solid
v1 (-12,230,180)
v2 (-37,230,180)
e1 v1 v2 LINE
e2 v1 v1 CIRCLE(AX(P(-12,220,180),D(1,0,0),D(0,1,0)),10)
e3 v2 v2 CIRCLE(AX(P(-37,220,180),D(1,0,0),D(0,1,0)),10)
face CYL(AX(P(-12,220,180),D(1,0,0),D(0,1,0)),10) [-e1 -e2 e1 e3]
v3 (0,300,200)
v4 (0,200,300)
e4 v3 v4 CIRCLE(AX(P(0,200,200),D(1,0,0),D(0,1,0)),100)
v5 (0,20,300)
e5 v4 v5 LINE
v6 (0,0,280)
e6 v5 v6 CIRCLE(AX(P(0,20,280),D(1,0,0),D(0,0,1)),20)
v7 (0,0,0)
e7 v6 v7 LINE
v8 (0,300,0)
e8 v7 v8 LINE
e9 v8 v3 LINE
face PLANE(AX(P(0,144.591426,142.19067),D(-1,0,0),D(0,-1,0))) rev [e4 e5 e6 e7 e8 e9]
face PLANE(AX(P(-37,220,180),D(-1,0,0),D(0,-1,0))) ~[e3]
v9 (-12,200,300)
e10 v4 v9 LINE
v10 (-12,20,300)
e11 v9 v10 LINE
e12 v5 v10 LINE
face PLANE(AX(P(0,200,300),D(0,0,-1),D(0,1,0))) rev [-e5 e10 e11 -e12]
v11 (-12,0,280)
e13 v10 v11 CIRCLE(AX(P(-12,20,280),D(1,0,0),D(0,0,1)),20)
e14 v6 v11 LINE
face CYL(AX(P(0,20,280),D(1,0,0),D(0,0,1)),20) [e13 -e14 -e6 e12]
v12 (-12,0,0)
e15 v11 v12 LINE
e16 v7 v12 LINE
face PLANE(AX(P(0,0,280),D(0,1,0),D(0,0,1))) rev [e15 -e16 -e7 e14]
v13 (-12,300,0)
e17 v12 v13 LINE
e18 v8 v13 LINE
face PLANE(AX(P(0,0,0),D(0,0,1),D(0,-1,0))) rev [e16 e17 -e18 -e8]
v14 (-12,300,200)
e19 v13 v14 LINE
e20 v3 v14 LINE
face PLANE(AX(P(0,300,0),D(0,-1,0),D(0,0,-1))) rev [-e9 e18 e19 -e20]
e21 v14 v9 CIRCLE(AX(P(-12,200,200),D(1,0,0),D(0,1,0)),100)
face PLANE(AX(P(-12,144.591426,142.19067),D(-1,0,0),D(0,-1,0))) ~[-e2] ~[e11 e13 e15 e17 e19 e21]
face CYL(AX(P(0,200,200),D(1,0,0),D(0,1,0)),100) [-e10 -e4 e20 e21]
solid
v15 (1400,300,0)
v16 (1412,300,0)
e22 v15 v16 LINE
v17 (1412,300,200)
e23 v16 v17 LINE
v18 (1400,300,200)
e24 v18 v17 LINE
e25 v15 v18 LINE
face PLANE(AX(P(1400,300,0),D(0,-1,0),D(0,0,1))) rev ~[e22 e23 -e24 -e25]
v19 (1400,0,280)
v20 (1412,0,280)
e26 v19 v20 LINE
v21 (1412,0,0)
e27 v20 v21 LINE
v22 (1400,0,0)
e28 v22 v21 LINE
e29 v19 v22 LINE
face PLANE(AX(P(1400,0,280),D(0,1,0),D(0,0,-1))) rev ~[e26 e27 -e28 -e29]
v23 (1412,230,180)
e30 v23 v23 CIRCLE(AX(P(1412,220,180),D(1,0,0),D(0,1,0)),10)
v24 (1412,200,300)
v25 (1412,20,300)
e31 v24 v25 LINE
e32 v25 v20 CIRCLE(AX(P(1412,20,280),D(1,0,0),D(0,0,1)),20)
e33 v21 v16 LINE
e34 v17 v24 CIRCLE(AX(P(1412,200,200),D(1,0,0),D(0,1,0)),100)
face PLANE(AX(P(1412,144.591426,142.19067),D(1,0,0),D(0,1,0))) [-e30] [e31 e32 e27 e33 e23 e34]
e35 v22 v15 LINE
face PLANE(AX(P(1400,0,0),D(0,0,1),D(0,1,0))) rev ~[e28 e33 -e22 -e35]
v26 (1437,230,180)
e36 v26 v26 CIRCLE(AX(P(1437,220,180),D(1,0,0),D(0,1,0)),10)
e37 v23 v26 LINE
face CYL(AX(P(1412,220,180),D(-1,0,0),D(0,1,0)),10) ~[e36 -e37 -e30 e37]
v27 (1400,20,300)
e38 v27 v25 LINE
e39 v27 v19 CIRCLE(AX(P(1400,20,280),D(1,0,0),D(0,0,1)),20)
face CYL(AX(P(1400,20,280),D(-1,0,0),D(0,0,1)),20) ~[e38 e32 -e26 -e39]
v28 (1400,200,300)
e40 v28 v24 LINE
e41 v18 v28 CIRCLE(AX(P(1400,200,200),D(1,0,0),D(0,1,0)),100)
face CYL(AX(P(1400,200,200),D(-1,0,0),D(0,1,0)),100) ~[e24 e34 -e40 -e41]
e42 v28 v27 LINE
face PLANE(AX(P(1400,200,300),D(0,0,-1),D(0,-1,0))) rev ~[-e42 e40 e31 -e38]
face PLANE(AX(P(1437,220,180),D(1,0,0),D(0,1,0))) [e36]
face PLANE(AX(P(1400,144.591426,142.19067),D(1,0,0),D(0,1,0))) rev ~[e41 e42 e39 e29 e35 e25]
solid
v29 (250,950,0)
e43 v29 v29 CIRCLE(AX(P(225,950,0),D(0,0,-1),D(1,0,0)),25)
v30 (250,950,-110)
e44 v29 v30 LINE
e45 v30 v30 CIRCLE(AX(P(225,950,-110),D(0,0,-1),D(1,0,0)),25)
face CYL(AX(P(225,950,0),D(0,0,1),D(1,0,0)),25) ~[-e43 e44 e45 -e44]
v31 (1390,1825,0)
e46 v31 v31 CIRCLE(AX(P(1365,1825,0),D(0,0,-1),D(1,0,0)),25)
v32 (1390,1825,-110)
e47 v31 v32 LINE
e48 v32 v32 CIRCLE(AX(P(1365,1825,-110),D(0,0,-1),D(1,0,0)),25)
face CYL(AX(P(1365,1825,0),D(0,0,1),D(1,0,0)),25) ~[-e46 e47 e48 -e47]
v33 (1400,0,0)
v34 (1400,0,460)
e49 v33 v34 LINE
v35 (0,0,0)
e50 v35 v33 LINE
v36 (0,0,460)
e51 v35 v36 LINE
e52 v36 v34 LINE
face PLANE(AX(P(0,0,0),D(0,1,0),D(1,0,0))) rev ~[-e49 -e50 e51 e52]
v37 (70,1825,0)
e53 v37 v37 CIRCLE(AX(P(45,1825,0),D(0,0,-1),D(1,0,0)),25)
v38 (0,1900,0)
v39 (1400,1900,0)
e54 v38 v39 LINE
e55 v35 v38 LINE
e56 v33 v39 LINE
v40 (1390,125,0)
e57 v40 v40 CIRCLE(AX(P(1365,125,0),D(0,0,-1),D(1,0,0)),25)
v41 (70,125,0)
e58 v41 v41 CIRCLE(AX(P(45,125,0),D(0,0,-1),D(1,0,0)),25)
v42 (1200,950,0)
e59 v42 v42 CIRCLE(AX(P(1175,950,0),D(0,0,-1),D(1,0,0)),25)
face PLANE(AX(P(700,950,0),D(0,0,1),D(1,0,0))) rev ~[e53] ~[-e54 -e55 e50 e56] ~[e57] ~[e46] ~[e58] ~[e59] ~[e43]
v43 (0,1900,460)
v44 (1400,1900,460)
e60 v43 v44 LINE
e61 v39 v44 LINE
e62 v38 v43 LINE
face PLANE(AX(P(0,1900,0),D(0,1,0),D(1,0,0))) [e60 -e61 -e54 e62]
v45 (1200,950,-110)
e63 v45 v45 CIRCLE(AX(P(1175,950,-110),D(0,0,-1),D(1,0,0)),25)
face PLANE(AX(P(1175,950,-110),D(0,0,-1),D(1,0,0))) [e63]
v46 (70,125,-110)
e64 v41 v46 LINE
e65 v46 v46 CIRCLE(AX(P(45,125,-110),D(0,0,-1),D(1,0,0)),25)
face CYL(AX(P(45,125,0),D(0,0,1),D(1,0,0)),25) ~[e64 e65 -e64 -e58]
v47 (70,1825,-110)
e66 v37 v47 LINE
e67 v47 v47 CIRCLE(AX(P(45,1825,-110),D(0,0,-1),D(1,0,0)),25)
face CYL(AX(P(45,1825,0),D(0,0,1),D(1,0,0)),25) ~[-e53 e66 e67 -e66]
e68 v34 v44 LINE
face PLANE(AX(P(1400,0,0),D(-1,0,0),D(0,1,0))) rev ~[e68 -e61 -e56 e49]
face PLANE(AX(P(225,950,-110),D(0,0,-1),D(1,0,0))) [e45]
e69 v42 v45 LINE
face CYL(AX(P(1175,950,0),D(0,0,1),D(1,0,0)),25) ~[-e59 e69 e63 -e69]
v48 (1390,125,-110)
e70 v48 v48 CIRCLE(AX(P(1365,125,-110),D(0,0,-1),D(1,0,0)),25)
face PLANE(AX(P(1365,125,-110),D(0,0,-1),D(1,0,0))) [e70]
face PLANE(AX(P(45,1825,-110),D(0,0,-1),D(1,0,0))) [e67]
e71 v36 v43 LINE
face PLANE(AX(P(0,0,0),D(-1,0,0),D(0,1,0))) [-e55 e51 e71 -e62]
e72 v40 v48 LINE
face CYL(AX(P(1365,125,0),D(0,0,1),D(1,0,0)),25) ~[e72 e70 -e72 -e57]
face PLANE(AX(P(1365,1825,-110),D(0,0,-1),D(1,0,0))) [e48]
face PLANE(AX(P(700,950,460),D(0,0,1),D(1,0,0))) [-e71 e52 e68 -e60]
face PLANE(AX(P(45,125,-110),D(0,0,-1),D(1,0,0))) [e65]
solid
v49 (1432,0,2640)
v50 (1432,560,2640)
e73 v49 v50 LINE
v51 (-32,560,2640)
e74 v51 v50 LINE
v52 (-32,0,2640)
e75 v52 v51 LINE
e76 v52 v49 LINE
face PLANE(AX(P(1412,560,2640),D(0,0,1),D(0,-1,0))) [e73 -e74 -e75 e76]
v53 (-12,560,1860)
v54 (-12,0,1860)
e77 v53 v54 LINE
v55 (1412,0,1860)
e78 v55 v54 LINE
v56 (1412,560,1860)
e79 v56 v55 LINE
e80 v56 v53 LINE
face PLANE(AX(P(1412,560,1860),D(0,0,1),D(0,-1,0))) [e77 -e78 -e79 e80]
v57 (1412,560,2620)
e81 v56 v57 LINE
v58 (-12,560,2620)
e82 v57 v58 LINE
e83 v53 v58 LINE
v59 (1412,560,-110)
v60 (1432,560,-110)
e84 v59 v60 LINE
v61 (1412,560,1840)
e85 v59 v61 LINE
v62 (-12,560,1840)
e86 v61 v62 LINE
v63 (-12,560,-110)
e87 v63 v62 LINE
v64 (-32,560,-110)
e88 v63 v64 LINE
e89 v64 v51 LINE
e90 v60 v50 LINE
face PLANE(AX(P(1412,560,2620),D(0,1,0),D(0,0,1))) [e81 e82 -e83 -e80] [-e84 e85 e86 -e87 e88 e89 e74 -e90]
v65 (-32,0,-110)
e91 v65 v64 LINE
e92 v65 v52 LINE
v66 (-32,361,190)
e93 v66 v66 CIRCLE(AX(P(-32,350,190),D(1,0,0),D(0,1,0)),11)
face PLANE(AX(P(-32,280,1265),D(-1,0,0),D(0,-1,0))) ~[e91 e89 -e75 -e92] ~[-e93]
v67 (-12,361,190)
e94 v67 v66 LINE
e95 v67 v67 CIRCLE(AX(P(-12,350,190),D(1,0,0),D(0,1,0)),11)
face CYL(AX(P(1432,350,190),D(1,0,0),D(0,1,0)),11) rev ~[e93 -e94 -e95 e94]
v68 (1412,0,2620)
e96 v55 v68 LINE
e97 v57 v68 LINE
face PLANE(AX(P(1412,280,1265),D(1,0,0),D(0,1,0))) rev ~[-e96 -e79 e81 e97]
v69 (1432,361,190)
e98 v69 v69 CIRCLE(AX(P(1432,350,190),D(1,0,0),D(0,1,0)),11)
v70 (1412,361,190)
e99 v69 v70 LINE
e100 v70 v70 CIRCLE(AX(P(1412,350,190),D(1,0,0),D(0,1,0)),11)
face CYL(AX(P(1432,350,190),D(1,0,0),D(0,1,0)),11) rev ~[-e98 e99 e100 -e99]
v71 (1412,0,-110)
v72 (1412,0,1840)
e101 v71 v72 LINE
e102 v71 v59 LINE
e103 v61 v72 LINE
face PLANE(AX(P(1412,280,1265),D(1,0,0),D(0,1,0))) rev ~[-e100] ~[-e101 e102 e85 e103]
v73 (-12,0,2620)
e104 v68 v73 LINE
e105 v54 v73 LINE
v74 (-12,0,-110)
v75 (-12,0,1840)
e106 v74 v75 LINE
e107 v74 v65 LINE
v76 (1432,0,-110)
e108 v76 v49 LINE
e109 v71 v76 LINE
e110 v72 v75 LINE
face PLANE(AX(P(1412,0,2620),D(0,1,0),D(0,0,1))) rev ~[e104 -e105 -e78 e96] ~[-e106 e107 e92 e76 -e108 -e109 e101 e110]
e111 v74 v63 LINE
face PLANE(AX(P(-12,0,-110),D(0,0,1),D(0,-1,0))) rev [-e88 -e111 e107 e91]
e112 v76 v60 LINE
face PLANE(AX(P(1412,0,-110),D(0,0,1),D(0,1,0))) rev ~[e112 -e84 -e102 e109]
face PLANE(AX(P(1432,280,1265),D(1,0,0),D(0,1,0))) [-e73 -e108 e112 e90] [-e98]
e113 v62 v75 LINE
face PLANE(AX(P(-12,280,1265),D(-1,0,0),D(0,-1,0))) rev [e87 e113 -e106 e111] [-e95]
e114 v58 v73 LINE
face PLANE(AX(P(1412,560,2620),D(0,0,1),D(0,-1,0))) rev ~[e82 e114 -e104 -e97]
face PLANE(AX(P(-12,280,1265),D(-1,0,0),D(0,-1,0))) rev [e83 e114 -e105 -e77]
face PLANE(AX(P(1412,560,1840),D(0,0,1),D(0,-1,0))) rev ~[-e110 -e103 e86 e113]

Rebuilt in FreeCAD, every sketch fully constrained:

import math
import FreeCAD as App
import Part
import Sketcher
from FreeCAD import Vector
Q = App.Units.Quantity

doc = App.newDocument("Part")
body = doc.addObject("PartDesign::Body", "Body")

sketch1 = body.newObject("Sketcher::SketchObject", "Sketch")
sketch1.AttachmentSupport = (doc.getObject("XY_Plane"), [""])
sketch1.MapMode = "FlatFace"
sketch1.addGeometry([
    Part.LineSegment(Vector(0, 1900, 0), Vector(0, 0, 0)),
    Part.LineSegment(Vector(0, 0, 0), Vector(1400, 0, 0)),
    Part.LineSegment(Vector(1400, 0, 0), Vector(1400, 1900, 0)),
    Part.LineSegment(Vector(1400, 1900, 0), Vector(0, 1900, 0)),
], False)
sketch1.addConstraint([
    Sketcher.Constraint("Coincident", 0, 2, 1, 1),
    Sketcher.Constraint("Coincident", 1, 2, 2, 1),
    Sketcher.Constraint("Coincident", 2, 2, 3, 1),
    Sketcher.Constraint("Coincident", 3, 2, 0, 1),
    Sketcher.Constraint("Vertical", 0),
    Sketcher.Constraint("Horizontal", 1),
    Sketcher.Constraint("Vertical", 2),
    Sketcher.Constraint("Horizontal", 3),
    Sketcher.Constraint("Coincident", 0, 2, -1, 1),
    Sketcher.Constraint("DistanceX", 1, 1, 1, 2, Q("1400 mm")),
    Sketcher.Constraint("DistanceY", 0, 2, 0, 1, Q("1900 mm")),
])
pad1 = body.newObject("PartDesign::Pad", "Pad")
pad1.Profile = sketch1
pad1.Length = 460

sketch2 = body.newObject("Sketcher::SketchObject", "Sketch001")
sketch2.AttachmentSupport = (doc.getObject("XY_Plane"), [""])
sketch2.MapMode = "FlatFace"
sketch2.addGeometry([
    Part.Circle(Vector(45, 125, 0), Vector(0, 0, 1), 25),
    Part.Circle(Vector(45, 1825, 0), Vector(0, 0, 1), 25),
    Part.Circle(Vector(1365, 125, 0), Vector(0, 0, 1), 25),
    Part.Circle(Vector(1365, 1825, 0), Vector(0, 0, 1), 25),
    Part.Circle(Vector(225, 950, 0), Vector(0, 0, 1), 25),
    Part.Circle(Vector(1175, 950, 0), Vector(0, 0, 1), 25),
], False)
sketch2.addConstraint([
    Sketcher.Constraint("Equal", 0, 1),
    Sketcher.Constraint("Equal", 1, 2),
    Sketcher.Constraint("Equal", 2, 3),
    Sketcher.Constraint("Equal", 3, 4),
    Sketcher.Constraint("Equal", 4, 5),
    Sketcher.Constraint("Horizontal", 0, 3, 2, 3),
    Sketcher.Constraint("Horizontal", 1, 3, 3, 3),
    Sketcher.Constraint("Horizontal", 4, 3, 5, 3),
    Sketcher.Constraint("Vertical", 0, 3, 1, 3),
    Sketcher.Constraint("Vertical", 2, 3, 3, 3),
    Sketcher.Constraint("Diameter", 0, Q("50 mm")),
    Sketcher.Constraint("DistanceX", -1, 1, 0, 3, Q("45 mm")),
    Sketcher.Constraint("DistanceY", -1, 1, 0, 3, Q("125 mm")),
    Sketcher.Constraint("DistanceY", -1, 1, 1, 3, Q("1825 mm")),
    Sketcher.Constraint("DistanceX", -1, 1, 2, 3, Q("1365 mm")),
    Sketcher.Constraint("DistanceX", -1, 1, 4, 3, Q("225 mm")),
    Sketcher.Constraint("DistanceY", -1, 1, 4, 3, Q("950 mm")),
    Sketcher.Constraint("DistanceX", -1, 1, 5, 3, Q("1175 mm")),
])
pad2 = body.newObject("PartDesign::Pad", "Pad001")
pad2.Profile = sketch2
pad2.Length = 110
pad2.Reversed = True
body2 = doc.addObject("PartDesign::Body", "Body001")

sketch3 = body2.newObject("Sketcher::SketchObject", "Sketch002")
sketch3.AttachmentSupport = (doc.getObject("YZ_Plane001"), [""])
sketch3.MapMode = "FlatFace"
sketch3.AttachmentOffset = App.Placement(Vector(0, 0, 1400), App.Rotation())
sketch3.addGeometry([
    Part.LineSegment(Vector(200, 300, 0), Vector(20, 300, 0)),
    Part.ArcOfCircle(Part.Circle(Vector(20, 280, 0), Vector(0, 0, 1), 20), math.radians(90), math.radians(180)),
    Part.LineSegment(Vector(0, 280, 0), Vector(0, 0, 0)),
    Part.LineSegment(Vector(0, 0, 0), Vector(300, 0, 0)),
    Part.LineSegment(Vector(300, 0, 0), Vector(300, 200, 0)),
    Part.ArcOfCircle(Part.Circle(Vector(200, 200, 0), Vector(0, 0, 1), 100), math.radians(0), math.radians(90)),
], False)
sketch3.addConstraint([
    Sketcher.Constraint("Tangent", 0, 2, 1, 1),
    Sketcher.Constraint("Tangent", 1, 2, 2, 1),
    Sketcher.Constraint("Coincident", 2, 2, 3, 1),
    Sketcher.Constraint("Coincident", 3, 2, 4, 1),
    Sketcher.Constraint("Tangent", 4, 2, 5, 1),
    Sketcher.Constraint("Tangent", 5, 2, 0, 1),
    Sketcher.Constraint("Horizontal", 0),
    Sketcher.Constraint("Vertical", 2),
    Sketcher.Constraint("Horizontal", 3),
    Sketcher.Constraint("Vertical", 4),
    Sketcher.Constraint("Coincident", 2, 2, -1, 1),
    Sketcher.Constraint("Radius", 1, Q("20 mm")),
    Sketcher.Constraint("Radius", 5, Q("100 mm")),
    Sketcher.Constraint("DistanceX", 0, 2, 0, 1, Q("180 mm")),
    Sketcher.Constraint("DistanceY", 2, 2, 2, 1, Q("280 mm")),
])
pad3 = body2.newObject("PartDesign::Pad", "Pad002")
pad3.Profile = sketch3
pad3.Length = 12

sketch4 = body2.newObject("Sketcher::SketchObject", "Sketch003")
sketch4.AttachmentSupport = (doc.getObject("YZ_Plane001"), [""])
sketch4.MapMode = "FlatFace"
sketch4.AttachmentOffset = App.Placement(Vector(0, 0, 1412), App.Rotation())
sketch4.addGeometry(Part.Circle(Vector(220, 180, 0), Vector(0, 0, 1), 10), False)
sketch4.addConstraint([
    Sketcher.Constraint("Diameter", 0, Q("20 mm")),
    Sketcher.Constraint("DistanceX", -1, 1, 0, 3, Q("220 mm")),
    Sketcher.Constraint("DistanceY", -1, 1, 0, 3, Q("180 mm")),
])
pad4 = body2.newObject("PartDesign::Pad", "Pad003")
pad4.Profile = sketch4
pad4.Length = 25
body3 = doc.addObject("PartDesign::Body", "Body002")
doc.recompute()

mirroring = doc.addObject("Part::Mirroring", "Mirroring")
mirroring.Source = body2
mirroring.Base = Vector(700, 0, 0)
mirroring.Normal = Vector(1, 0, 0)
body3.BaseFeature = mirroring
doc.recompute()
body4 = doc.addObject("PartDesign::Body", "Body003")

sketch5 = body4.newObject("Sketcher::SketchObject", "Sketch004")
sketch5.AttachmentSupport = (doc.getObject("YZ_Plane003"), [""])
sketch5.MapMode = "FlatFace"
sketch5.AttachmentOffset = App.Placement(Vector(0, 0, 1412), App.Rotation())
sketch5.addGeometry([
    Part.LineSegment(Vector(0, 2640, 0), Vector(0, -110, 0)),
    Part.LineSegment(Vector(0, -110, 0), Vector(560, -110, 0)),
    Part.LineSegment(Vector(560, -110, 0), Vector(560, 2640, 0)),
    Part.LineSegment(Vector(560, 2640, 0), Vector(0, 2640, 0)),
], False)
sketch5.addConstraint([
    Sketcher.Constraint("Coincident", 0, 2, 1, 1),
    Sketcher.Constraint("Coincident", 1, 2, 2, 1),
    Sketcher.Constraint("Coincident", 2, 2, 3, 1),
    Sketcher.Constraint("Coincident", 3, 2, 0, 1),
    Sketcher.Constraint("Vertical", 0),
    Sketcher.Constraint("Horizontal", 1),
    Sketcher.Constraint("Vertical", 2),
    Sketcher.Constraint("Horizontal", 3),
    Sketcher.Constraint("PointOnObject", 0, 2, -2),
    Sketcher.Constraint("DistanceX", 1, 1, 1, 2, Q("560 mm")),
    Sketcher.Constraint("DistanceY", 0, 2, 0, 1, Q("2750 mm")),
    Sketcher.Constraint("DistanceY", 0, 2, -1, 1, Q("110 mm")),
])
pad5 = body4.newObject("PartDesign::Pad", "Pad004")
pad5.Profile = sketch5
pad5.Length = 20

sketch6 = body4.newObject("Sketcher::SketchObject", "Sketch005")
sketch6.AttachmentSupport = (doc.getObject("YZ_Plane003"), [""])
sketch6.MapMode = "FlatFace"
sketch6.AttachmentOffset = App.Placement(Vector(0, 0, 1412), App.Rotation())
sketch6.addGeometry([
    Part.LineSegment(Vector(560, 2640, 0), Vector(560, 2620, 0)),
    Part.LineSegment(Vector(560, 2620, 0), Vector(0, 2620, 0)),
    Part.LineSegment(Vector(0, 2620, 0), Vector(0, 2640, 0)),
    Part.LineSegment(Vector(0, 2640, 0), Vector(560, 2640, 0)),
    Part.LineSegment(Vector(560, 1860, 0), Vector(560, 1840, 0)),
    Part.LineSegment(Vector(560, 1840, 0), Vector(0, 1840, 0)),
    Part.LineSegment(Vector(0, 1840, 0), Vector(0, 1860, 0)),
    Part.LineSegment(Vector(0, 1860, 0), Vector(560, 1860, 0)),
], False)
sketch6.addConstraint([
    Sketcher.Constraint("Coincident", 0, 2, 1, 1),
    Sketcher.Constraint("Coincident", 1, 2, 2, 1),
    Sketcher.Constraint("Coincident", 2, 2, 3, 1),
    Sketcher.Constraint("Coincident", 3, 2, 0, 1),
    Sketcher.Constraint("Coincident", 4, 2, 5, 1),
    Sketcher.Constraint("Coincident", 5, 2, 6, 1),
    Sketcher.Constraint("Coincident", 6, 2, 7, 1),
    Sketcher.Constraint("Coincident", 7, 2, 4, 1),
    Sketcher.Constraint("Vertical", 0),
    Sketcher.Constraint("Horizontal", 1),
    Sketcher.Constraint("Vertical", 2),
    Sketcher.Constraint("Horizontal", 3),
    Sketcher.Constraint("Vertical", 4),
    Sketcher.Constraint("Horizontal", 5),
    Sketcher.Constraint("Vertical", 6),
    Sketcher.Constraint("Horizontal", 7),
    Sketcher.Constraint("PointOnObject", 1, 2, -2),
    Sketcher.Constraint("PointOnObject", 5, 2, -2),
    Sketcher.Constraint("Vertical", 3, 2, 4, 2),
    Sketcher.Constraint("Equal", 2, 4),
    Sketcher.Constraint("DistanceX", 1, 2, 1, 1, Q("560 mm")),
    Sketcher.Constraint("DistanceY", 0, 2, 0, 1, Q("20 mm")),
    Sketcher.Constraint("DistanceY", -1, 1, 0, 2, Q("2620 mm")),
    Sketcher.Constraint("DistanceY", -1, 1, 4, 2, Q("1840 mm")),
])
pad6 = body4.newObject("PartDesign::Pad", "Pad005")
pad6.Profile = sketch6
pad6.Length = 1440
pad6.Reversed = True
body5 = doc.addObject("PartDesign::Body", "Body004")
doc.recompute()

body5.BaseFeature = body4
doc.recompute()

mirroring2 = doc.addObject("Part::Mirroring", "Mirroring001")
mirroring2.Source = body4
mirroring2.Base = Vector(700, 0, 0)
mirroring2.Normal = Vector(1, 0, 0)
body6 = doc.addObject("PartDesign::Body", "Body005")
body6.BaseFeature = mirroring2
boolean = body5.newObject("PartDesign::Boolean", "Boolean")
boolean.Type = "Fuse"
boolean.addObjects([body6])
doc.recompute()

sketch7 = body5.newObject("Sketcher::SketchObject", "Sketch006")
sketch7.AttachmentSupport = (doc.getObject("YZ_Plane004"), [""])
sketch7.MapMode = "FlatFace"
sketch7.AttachmentOffset = App.Placement(Vector(0, 0, 1432), App.Rotation())
sketch7.addGeometry(Part.Circle(Vector(350, 190, 0), Vector(0, 0, 1), 11), False)
sketch7.addConstraint([
    Sketcher.Constraint("Diameter", 0, Q("22 mm")),
    Sketcher.Constraint("DistanceX", -1, 1, 0, 3, Q("350 mm")),
    Sketcher.Constraint("DistanceY", -1, 1, 0, 3, Q("190 mm")),
])
pocket1 = body5.newObject("PartDesign::Pocket", "Pocket")
pocket1.Profile = sketch7
pocket1.Type = "ThroughAll"
mirroring.Visibility = False
mirroring2.Visibility = False

doc.recompute()
